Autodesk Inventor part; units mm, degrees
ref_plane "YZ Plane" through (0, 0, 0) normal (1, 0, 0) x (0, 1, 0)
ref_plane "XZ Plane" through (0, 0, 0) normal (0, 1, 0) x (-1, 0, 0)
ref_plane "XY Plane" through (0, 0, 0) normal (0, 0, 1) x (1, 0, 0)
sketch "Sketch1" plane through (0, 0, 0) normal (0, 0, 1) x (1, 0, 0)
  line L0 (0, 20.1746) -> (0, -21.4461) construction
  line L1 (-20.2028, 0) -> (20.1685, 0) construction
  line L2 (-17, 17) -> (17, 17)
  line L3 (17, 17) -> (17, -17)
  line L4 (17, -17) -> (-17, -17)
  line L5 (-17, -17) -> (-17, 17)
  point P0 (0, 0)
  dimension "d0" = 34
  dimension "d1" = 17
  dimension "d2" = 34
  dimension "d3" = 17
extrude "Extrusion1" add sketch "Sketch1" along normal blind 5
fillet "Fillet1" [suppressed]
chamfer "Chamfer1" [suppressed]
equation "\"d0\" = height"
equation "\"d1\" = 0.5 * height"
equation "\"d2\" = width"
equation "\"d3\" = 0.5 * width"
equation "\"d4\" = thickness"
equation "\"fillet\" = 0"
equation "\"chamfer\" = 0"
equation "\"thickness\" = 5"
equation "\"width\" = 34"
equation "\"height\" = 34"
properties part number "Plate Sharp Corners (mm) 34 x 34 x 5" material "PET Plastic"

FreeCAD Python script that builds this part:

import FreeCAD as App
import Part
import Sketcher

V = App.Vector

doc = App.newDocument("Part")
body = doc.addObject("PartDesign::Body", "Body")

# Sketch on XY plane
sketch1 = body.newObject("Sketcher::SketchObject", "Sketch")
sketch1.AttachmentSupport = (doc.getObject("XY_Plane"), [""])
sketch1.MapMode = "FlatFace"
sketch1.addGeometry([
    Part.LineSegment(V(17, 17, 0), V(-17, 17, 0)),
    Part.LineSegment(V(-17, 17, 0), V(-17, -17, 0)),
    Part.LineSegment(V(-17, -17, 0), V(17, -17, 0)),
    Part.LineSegment(V(17, -17, 0), V(17, 17, 0)),
], False)
sketch1.addConstraint([
    Sketcher.Constraint("Coincident", 0, 2, 1, 1),
    Sketcher.Constraint("Coincident", 1, 2, 2, 1),
    Sketcher.Constraint("Coincident", 2, 2, 3, 1),
    Sketcher.Constraint("Coincident", 3, 2, 0, 1),
    Sketcher.Constraint("Horizontal", 0),
    Sketcher.Constraint("Vertical", 1),
    Sketcher.Constraint("Horizontal", 2),
    Sketcher.Constraint("Vertical", 3),
    Sketcher.Constraint("Symmetric", 0, 2, 2, 2, -1, 1),
    Sketcher.Constraint("Equal", 2, 1),
    Sketcher.Constraint("DistanceX", 0, 2, 0, 1, 34.0),
])
pad1 = body.newObject("PartDesign::Pad", "Pad")
pad1.Profile = sketch1
pad1.Length = 5

doc.recompute()
